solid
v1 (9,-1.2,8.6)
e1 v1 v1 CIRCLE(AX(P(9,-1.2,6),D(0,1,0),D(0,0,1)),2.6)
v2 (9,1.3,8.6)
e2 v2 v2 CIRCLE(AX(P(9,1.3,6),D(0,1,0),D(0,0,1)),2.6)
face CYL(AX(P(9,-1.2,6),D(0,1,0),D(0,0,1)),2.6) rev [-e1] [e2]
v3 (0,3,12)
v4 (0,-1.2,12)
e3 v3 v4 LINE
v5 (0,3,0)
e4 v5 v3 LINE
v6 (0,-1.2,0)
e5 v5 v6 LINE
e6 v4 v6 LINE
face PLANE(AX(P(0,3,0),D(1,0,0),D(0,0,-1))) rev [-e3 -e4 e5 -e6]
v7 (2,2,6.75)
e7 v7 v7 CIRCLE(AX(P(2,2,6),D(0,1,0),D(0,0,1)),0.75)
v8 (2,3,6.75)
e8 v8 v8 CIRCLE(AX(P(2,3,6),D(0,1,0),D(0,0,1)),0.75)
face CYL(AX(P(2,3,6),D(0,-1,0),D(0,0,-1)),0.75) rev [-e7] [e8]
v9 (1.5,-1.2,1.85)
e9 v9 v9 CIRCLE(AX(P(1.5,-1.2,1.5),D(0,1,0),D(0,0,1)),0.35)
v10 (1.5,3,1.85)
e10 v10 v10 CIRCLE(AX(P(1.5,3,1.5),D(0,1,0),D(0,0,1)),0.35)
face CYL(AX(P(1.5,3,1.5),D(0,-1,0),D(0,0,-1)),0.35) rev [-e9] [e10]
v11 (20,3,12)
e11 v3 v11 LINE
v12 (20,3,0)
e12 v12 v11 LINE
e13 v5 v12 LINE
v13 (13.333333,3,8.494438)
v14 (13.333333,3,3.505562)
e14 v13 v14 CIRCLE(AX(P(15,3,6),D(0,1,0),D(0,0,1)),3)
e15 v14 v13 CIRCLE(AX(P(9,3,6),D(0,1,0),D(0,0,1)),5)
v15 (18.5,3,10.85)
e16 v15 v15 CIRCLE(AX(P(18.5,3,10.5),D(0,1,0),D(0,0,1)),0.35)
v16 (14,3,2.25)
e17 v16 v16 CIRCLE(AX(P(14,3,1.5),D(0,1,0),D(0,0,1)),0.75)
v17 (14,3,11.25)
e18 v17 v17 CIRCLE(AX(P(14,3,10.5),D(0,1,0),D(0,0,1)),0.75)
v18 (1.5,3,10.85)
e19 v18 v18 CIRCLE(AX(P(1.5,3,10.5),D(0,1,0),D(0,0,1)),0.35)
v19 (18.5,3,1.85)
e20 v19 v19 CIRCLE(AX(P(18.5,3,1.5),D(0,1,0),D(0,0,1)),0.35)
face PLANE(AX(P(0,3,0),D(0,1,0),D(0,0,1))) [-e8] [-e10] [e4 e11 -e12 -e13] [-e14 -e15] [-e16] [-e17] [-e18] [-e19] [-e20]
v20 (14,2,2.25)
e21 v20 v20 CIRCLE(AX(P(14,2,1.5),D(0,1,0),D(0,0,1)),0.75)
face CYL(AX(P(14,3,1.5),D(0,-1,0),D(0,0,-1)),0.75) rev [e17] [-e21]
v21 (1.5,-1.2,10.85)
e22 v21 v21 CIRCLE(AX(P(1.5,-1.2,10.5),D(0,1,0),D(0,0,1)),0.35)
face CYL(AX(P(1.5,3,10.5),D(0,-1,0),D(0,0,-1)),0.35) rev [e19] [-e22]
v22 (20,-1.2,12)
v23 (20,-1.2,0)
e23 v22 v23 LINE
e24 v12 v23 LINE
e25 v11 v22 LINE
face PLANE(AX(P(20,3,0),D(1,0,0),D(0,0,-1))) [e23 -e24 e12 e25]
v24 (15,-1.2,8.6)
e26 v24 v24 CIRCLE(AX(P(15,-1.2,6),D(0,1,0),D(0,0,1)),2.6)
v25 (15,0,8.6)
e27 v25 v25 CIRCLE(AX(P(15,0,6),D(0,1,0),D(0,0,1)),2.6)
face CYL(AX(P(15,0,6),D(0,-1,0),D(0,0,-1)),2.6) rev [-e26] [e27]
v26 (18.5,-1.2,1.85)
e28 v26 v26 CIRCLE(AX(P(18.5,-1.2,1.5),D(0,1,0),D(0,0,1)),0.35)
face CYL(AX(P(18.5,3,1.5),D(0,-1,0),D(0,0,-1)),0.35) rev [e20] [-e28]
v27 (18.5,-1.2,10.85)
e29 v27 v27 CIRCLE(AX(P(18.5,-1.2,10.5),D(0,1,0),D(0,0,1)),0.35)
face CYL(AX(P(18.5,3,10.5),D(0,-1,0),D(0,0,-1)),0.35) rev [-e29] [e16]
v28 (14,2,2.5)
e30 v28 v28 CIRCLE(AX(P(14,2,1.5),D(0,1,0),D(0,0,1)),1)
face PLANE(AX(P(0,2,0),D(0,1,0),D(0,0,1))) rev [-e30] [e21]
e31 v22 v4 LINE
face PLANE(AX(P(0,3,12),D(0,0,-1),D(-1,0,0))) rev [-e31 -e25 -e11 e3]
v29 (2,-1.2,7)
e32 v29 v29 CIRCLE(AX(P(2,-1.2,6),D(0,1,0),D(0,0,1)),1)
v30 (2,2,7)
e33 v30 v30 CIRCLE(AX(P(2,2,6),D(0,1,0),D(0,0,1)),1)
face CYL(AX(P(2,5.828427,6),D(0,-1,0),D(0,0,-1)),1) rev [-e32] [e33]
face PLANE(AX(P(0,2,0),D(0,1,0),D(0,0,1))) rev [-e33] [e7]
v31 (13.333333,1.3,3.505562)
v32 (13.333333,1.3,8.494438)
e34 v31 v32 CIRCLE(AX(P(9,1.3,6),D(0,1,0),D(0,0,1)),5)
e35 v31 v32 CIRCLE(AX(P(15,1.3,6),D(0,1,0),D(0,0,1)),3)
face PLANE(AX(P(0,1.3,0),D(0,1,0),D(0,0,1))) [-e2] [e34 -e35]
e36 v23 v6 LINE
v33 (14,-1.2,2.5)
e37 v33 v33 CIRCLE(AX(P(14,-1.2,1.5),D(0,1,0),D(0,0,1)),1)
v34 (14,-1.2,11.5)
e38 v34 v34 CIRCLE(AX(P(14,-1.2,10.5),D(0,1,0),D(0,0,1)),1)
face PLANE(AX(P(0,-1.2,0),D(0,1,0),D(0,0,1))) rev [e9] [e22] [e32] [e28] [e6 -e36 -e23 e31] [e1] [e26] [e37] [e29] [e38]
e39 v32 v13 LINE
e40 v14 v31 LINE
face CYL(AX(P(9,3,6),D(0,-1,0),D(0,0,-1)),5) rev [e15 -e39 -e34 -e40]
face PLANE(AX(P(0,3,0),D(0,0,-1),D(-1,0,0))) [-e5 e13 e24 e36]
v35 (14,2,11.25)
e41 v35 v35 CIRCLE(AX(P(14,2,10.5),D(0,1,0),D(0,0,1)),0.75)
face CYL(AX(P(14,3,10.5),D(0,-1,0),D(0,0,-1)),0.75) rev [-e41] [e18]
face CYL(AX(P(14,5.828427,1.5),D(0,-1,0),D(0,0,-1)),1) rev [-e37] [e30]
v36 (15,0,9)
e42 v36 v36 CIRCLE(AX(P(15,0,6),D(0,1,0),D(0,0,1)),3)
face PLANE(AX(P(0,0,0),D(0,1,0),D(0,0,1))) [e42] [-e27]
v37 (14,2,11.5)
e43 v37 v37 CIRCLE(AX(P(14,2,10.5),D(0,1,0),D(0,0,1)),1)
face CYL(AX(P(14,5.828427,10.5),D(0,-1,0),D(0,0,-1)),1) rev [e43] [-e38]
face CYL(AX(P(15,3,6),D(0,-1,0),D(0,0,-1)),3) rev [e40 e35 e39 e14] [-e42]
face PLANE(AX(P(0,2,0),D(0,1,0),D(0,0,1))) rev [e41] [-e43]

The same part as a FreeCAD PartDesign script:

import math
import FreeCAD as App
import Part
import Sketcher
from FreeCAD import Vector

doc = App.newDocument("Part")
body = doc.addObject("PartDesign::Body", "Body")

sketch1 = body.newObject("Sketcher::SketchObject", "Sketch")
sketch1.AttachmentSupport = (doc.getObject("XZ_Plane"), [""])
sketch1.MapMode = "FlatFace"
sketch1.addGeometry([
    Part.LineSegment(Vector(0, 0, 0), Vector(0, 12, 0)),
    Part.LineSegment(Vector(0, 12, 0), Vector(20, 12, 0)),
    Part.LineSegment(Vector(20, 12, 0), Vector(20, 0, 0)),
    Part.LineSegment(Vector(20, 0, 0), Vector(0, 0, 0)),
    Part.ArcOfCircle(Part.Circle(Vector(9, 6, 0), Vector(0, 0, 1), 5), math.radians(30), math.radians(330)),
    Part.ArcOfCircle(Part.Circle(Vector(15, 6, 0), Vector(0, 0, 1), 3), math.radians(-124), math.radians(124)),
], False)
sketch1.addConstraint([
    Sketcher.Constraint("Coincident", 0, 2, 1, 1),
    Sketcher.Constraint("Coincident", 1, 2, 2, 1),
    Sketcher.Constraint("Coincident", 2, 2, 3, 1),
    Sketcher.Constraint("Coincident", 3, 2, 0, 1),
    Sketcher.Constraint("Coincident", 4, 1, 5, 2),
    Sketcher.Constraint("Coincident", 5, 1, 4, 2),
    Sketcher.Constraint("Vertical", 0),
    Sketcher.Constraint("Horizontal", 1),
    Sketcher.Constraint("Vertical", 2),
    Sketcher.Constraint("Horizontal", 3),
    Sketcher.Constraint("Coincident", 3, 2, -1, 1),
    Sketcher.Constraint("Horizontal", 4, 3, 5, 3),
    Sketcher.Constraint("Radius", 4, 5.0),
    Sketcher.Constraint("Radius", 5, 3.0),
    Sketcher.Constraint("DistanceX", 1, 1, 1, 2, 20.0),
    Sketcher.Constraint("DistanceY", 0, 1, 0, 2, 12.0),
    Sketcher.Constraint("DistanceX", -1, 1, 4, 3, 9.0),
    Sketcher.Constraint("DistanceY", -1, 1, 4, 3, 6.0),
    Sketcher.Constraint("DistanceX", -1, 1, 5, 3, 15.0),
])
pad1 = body.newObject("PartDesign::Pad", "Pad")
pad1.Profile = sketch1
pad1.Length = 3
pad1.Reversed = True

sketch2 = body.newObject("Sketcher::SketchObject", "Sketch001")
sketch2.AttachmentSupport = (doc.getObject("XZ_Plane"), [""])
sketch2.MapMode = "FlatFace"
sketch2.addGeometry([
    Part.LineSegment(Vector(0, 0, 0), Vector(0, 12, 0)),
    Part.LineSegment(Vector(0, 12, 0), Vector(20, 12, 0)),
    Part.LineSegment(Vector(20, 12, 0), Vector(20, 0, 0)),
    Part.LineSegment(Vector(20, 0, 0), Vector(0, 0, 0)),
    Part.Circle(Vector(9, 6, 0), Vector(0, 0, 1), 2.6),
    Part.Circle(Vector(15, 6, 0), Vector(0, 0, 1), 3),
], False)
sketch2.addConstraint([
    Sketcher.Constraint("Coincident", 0, 2, 1, 1),
    Sketcher.Constraint("Coincident", 1, 2, 2, 1),
    Sketcher.Constraint("Coincident", 2, 2, 3, 1),
    Sketcher.Constraint("Coincident", 3, 2, 0, 1),
    Sketcher.Constraint("Vertical", 0),
    Sketcher.Constraint("Horizontal", 1),
    Sketcher.Constraint("Vertical", 2),
    Sketcher.Constraint("Horizontal", 3),
    Sketcher.Constraint("Coincident", 3, 2, -1, 1),
    Sketcher.Constraint("Horizontal", 4, 3, 5, 3),
    Sketcher.Constraint("Diameter", 5, 6.0),
    Sketcher.Constraint("Diameter", 4, 5.2),
    Sketcher.Constraint("DistanceX", 1, 1, 1, 2, 20.0),
    Sketcher.Constraint("DistanceY", 0, 1, 0, 2, 12.0),
    Sketcher.Constraint("DistanceX", -1, 1, 4, 3, 9.0),
    Sketcher.Constraint("DistanceY", -1, 1, 4, 3, 6.0),
    Sketcher.Constraint("DistanceX", -1, 1, 5, 3, 15.0),
])
pad2 = body.newObject("PartDesign::Pad", "Pad001")
pad2.Profile = sketch2
pad2.Type = "TwoLengths"
pad2.Length = 1.3
pad2.Length2 = 1.2
pad2.Reversed = True

sketch3 = body.newObject("Sketcher::SketchObject", "Sketch002")
sketch3.AttachmentSupport = (doc.getObject("XZ_Plane"), [""])
sketch3.MapMode = "FlatFace"
sketch3.AttachmentOffset = App.Placement(Vector(0, 0, 1.2), App.Rotation())
sketch3.addGeometry([
    Part.LineSegment(Vector(0, 0, 0), Vector(0, 12, 0)),
    Part.LineSegment(Vector(0, 12, 0), Vector(20, 12, 0)),
    Part.LineSegment(Vector(20, 12, 0), Vector(20, 0, 0)),
    Part.LineSegment(Vector(20, 0, 0), Vector(0, 0, 0)),
    Part.Circle(Vector(9, 6, 0), Vector(0, 0, 1), 2.6),
    Part.Circle(Vector(15, 6, 0), Vector(0, 0, 1), 2.6),
], False)
sketch3.addConstraint([
    Sketcher.Constraint("Coincident", 0, 2, 1, 1),
    Sketcher.Constraint("Coincident", 1, 2, 2, 1),
    Sketcher.Constraint("Coincident", 2, 2, 3, 1),
    Sketcher.Constraint("Coincident", 3, 2, 0, 1),
    Sketcher.Constraint("Vertical", 0),
    Sketcher.Constraint("Horizontal", 1),
    Sketcher.Constraint("Vertical", 2),
    Sketcher.Constraint("Horizontal", 3),
    Sketcher.Constraint("Coincident", 3, 2, -1, 1),
    Sketcher.Constraint("Equal", 4, 5),
    Sketcher.Constraint("Horizontal", 4, 3, 5, 3),
    Sketcher.Constraint("Diameter", 4, 5.2),
    Sketcher.Constraint("DistanceX", 1, 1, 1, 2, 20.0),
    Sketcher.Constraint("DistanceY", 0, 1, 0, 2, 12.0),
    Sketcher.Constraint("DistanceX", -1, 1, 4, 3, 9.0),
    Sketcher.Constraint("DistanceY", -1, 1, 4, 3, 6.0),
    Sketcher.Constraint("DistanceX", -1, 1, 5, 3, 15.0),
])
pad3 = body.newObject("PartDesign::Pad", "Pad002")
pad3.Profile = sketch3
pad3.Length = 1.2
pad3.Reversed = True

sketch4 = body.newObject("Sketcher::SketchObject", "Sketch003")
sketch4.AttachmentSupport = (doc.getObject("XZ_Plane"), [""])
sketch4.MapMode = "FlatFace"
sketch4.addGeometry([
    Part.Circle(Vector(2, 6, 0), Vector(0, 0, 1), 0.75),
    Part.Circle(Vector(14, 1.5, 0), Vector(0, 0, 1), 0.75),
    Part.Circle(Vector(14, 10.5, 0), Vector(0, 0, 1), 0.75),
    Part.Circle(Vector(1.5, 1.5, 0), Vector(0, 0, 1), 0.35),
    Part.Circle(Vector(18.5, 1.5, 0), Vector(0, 0, 1), 0.35),
    Part.Circle(Vector(1.5, 10.5, 0), Vector(0, 0, 1), 0.35),
    Part.Circle(Vector(18.5, 10.5, 0), Vector(0, 0, 1), 0.35),
], False)
sketch4.addConstraint([
    Sketcher.Constraint("Equal", 0, 1),
    Sketcher.Constraint("Equal", 1, 2),
    Sketcher.Constraint("Equal", 3, 4),
    Sketcher.Constraint("Equal", 4, 5),
    Sketcher.Constraint("Equal", 5, 6),
    Sketcher.Constraint("Horizontal", 1, 3, 3, 3),
    Sketcher.Constraint("Horizontal", 3, 3, 4, 3),
    Sketcher.Constraint("Horizontal", 2, 3, 5, 3),
    Sketcher.Constraint("Horizontal", 5, 3, 6, 3),
    Sketcher.Constraint("Vertical", 1, 3, 2, 3),
    Sketcher.Constraint("Vertical", 3, 3, 5, 3),
    Sketcher.Constraint("Vertical", 4, 3, 6, 3),
    Sketcher.Constraint("Diameter", 0, 1.5),
    Sketcher.Constraint("Diameter", 3, 0.7),
    Sketcher.Constraint("DistanceX", -1, 1, 0, 3, 2.0),
    Sketcher.Constraint("DistanceY", -1, 1, 0, 3, 6.0),
    Sketcher.Constraint("DistanceX", -1, 1, 1, 3, 14.0),
    Sketcher.Constraint("DistanceY", 1, 3, 2, 3, 9.0),
    Sketcher.Constraint("DistanceX", 3, 3, 4, 3, 17.0),
    Sketcher.Constraint("DistanceY", -1, 1, 1, 3, 1.5),
    Sketcher.Constraint("DistanceX", -1, 1, 3, 3, 1.5),
])
pocket1 = body.newObject("PartDesign::Pocket", "Pocket")
pocket1.Profile = sketch4
pocket1.Type = "ThroughAll"
pocket1.Midplane = True

sketch5 = body.newObject("Sketcher::SketchObject", "Sketch004")
sketch5.AttachmentSupport = (doc.getObject("XZ_Plane"), [""])
sketch5.MapMode = "FlatFace"
sketch5.AttachmentOffset = App.Placement(Vector(0, 0, 1.2), App.Rotation())
sketch5.addGeometry([
    Part.Circle(Vector(2, 6, 0), Vector(0, 0, 1), 1),
    Part.Circle(Vector(14, 1.5, 0), Vector(0, 0, 1), 1),
    Part.Circle(Vector(14, 10.5, 0), Vector(0, 0, 1), 1),
], False)
sketch5.addConstraint([
    Sketcher.Constraint("Equal", 0, 1),
    Sketcher.Constraint("Equal", 1, 2),
    Sketcher.Constraint("Vertical", 1, 3, 2, 3),
    Sketcher.Constraint("Diameter", 0, 2.0),
    Sketcher.Constraint("DistanceX", -1, 1, 0, 3, 2.0),
    Sketcher.Constraint("DistanceY", -1, 1, 0, 3, 6.0),
    Sketcher.Constraint("DistanceX", -1, 1, 1, 3, 14.0),
    Sketcher.Constraint("DistanceY", 1, 3, 2, 3, 9.0),
    Sketcher.Constraint("DistanceY", -1, 1, 1, 3, 1.5),
])
pocket2 = body.newObject("PartDesign::Pocket", "Pocket001")
pocket2.Profile = sketch5
pocket2.Length = 3.2

doc.recompute()
